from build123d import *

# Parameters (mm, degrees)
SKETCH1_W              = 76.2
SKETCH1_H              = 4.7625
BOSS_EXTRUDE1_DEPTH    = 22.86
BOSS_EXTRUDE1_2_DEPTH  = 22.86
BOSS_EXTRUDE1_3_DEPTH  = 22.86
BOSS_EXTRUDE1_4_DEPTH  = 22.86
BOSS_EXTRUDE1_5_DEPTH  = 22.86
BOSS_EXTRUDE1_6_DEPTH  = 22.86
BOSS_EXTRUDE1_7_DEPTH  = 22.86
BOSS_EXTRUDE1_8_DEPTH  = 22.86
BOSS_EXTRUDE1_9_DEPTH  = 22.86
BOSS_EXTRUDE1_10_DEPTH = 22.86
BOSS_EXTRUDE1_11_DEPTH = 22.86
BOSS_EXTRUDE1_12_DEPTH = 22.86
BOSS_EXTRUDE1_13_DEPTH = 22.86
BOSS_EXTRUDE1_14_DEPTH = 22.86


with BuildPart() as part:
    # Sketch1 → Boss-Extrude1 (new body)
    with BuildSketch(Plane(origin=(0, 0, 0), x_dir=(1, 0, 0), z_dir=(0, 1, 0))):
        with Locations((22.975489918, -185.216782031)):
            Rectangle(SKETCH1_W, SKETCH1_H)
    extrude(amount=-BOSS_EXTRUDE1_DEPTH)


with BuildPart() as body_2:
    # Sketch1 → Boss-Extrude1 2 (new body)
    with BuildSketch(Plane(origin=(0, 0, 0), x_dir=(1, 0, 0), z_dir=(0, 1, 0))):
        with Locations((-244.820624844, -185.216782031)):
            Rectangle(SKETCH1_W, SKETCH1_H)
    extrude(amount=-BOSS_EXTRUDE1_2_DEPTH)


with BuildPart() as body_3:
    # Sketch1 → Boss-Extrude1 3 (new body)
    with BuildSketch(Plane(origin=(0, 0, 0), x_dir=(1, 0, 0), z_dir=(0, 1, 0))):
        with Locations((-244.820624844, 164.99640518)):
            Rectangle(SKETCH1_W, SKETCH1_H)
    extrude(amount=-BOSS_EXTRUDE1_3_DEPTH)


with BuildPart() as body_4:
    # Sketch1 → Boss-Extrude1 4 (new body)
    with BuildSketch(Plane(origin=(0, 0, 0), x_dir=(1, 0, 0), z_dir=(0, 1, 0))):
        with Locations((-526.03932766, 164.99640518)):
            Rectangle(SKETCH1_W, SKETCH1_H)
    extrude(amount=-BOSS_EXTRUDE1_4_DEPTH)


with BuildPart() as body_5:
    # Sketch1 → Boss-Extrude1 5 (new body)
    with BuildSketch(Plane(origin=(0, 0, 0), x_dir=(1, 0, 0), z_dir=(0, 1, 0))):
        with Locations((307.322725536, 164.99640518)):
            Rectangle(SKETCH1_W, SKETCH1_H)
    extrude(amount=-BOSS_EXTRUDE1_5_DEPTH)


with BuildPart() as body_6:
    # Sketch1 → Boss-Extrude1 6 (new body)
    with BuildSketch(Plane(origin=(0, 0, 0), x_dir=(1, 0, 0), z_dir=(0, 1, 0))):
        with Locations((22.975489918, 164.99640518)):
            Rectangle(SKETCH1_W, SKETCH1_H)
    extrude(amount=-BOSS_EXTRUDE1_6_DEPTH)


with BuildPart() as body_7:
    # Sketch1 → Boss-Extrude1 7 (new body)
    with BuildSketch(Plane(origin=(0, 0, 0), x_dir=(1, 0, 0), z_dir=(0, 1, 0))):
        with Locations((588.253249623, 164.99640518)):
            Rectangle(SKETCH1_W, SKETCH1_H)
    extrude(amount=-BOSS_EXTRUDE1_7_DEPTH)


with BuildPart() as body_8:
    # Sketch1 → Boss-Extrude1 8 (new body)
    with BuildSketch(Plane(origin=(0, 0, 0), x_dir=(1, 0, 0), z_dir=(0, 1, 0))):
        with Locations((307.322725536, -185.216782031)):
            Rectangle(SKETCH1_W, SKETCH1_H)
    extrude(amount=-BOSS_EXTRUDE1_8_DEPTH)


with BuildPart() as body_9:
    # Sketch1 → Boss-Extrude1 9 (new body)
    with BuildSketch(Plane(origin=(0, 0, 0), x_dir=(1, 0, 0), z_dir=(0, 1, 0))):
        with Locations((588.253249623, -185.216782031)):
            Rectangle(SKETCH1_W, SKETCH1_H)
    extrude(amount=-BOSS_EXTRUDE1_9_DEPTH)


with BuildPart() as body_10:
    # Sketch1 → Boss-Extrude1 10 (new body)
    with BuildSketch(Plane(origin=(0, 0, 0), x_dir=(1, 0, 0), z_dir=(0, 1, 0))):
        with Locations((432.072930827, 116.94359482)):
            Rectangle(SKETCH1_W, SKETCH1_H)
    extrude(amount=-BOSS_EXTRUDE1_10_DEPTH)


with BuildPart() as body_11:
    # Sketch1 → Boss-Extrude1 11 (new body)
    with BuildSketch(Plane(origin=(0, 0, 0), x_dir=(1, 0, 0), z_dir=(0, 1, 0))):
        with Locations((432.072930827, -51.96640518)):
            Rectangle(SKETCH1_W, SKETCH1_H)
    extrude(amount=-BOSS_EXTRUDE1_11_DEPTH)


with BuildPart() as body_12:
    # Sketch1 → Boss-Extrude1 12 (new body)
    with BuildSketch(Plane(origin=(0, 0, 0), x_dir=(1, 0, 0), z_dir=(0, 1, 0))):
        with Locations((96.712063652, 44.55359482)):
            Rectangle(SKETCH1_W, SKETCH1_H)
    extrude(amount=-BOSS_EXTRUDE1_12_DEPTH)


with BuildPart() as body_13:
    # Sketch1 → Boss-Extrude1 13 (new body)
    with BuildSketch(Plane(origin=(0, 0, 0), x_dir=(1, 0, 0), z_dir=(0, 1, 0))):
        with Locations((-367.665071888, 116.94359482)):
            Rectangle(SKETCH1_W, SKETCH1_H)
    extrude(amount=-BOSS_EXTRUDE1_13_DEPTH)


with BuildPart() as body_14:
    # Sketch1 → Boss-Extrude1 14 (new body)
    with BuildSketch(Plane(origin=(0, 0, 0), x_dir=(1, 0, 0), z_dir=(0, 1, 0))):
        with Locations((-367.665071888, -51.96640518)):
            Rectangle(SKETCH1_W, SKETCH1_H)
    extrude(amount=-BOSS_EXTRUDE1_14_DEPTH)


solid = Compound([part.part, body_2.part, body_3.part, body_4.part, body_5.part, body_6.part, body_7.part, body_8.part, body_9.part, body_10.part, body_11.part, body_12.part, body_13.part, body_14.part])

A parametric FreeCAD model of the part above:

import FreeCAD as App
import Part
import Sketcher
from FreeCAD import Vector
Q = App.Units.Quantity


def add_polygon(sketch, points):
    """Adds a closed chain of lines whose ends are joined by coincident constraints."""
    first, n = sketch.GeometryCount, len(points)
    for a, b in zip(points, points[1:] + points[:1]):
        sketch.addGeometry(Part.LineSegment(App.Vector(*a, 0), App.Vector(*b, 0)), False)
    for i in range(n):
        sketch.addConstraint(Sketcher.Constraint("Coincident", first + i, 2, first + (i + 1) % n, 1))

doc = App.newDocument("Part")
body = doc.addObject("PartDesign::Body", "Body")

# Sketch on XZ plane
sketch1 = body.newObject("Sketcher::SketchObject", "Sketch")
sketch1.AttachmentSupport = (doc.getObject("XZ_Plane"), [""])
sketch1.MapMode = "FlatFace"
add_polygon(sketch1, [(-15.1, 182.8), (-15.1, 187.6), (61.1, 187.6), (61.1, 182.8)])  # lines 0-3
sketch1.addConstraint([
    Sketcher.Constraint("Vertical", 0),
    Sketcher.Constraint("Horizontal", 1),
    Sketcher.Constraint("Vertical", 2),
    Sketcher.Constraint("Horizontal", 3),
    Sketcher.Constraint("DistanceX", 1, 1, 1, 2, Q("3 in")),
    Sketcher.Constraint("DistanceY", 0, 1, 0, 2, Q("0.1875 in")),
    Sketcher.Constraint("DistanceX", 0, 2, -1, 1, 15.12451),
    Sketcher.Constraint("DistanceY", -1, 1, 0, 2, 187.598032),
])
pad1 = body.newObject("PartDesign::Pad", "Pad")
pad1.Profile = sketch1
pad1.Length = Q("0.9 in")
body2 = doc.addObject("PartDesign::Body", "Body001")

# Sketch on XZ plane
sketch2 = body2.newObject("Sketcher::SketchObject", "Sketch001")
sketch2.AttachmentSupport = (doc.getObject("XZ_Plane001"), [""])
sketch2.MapMode = "FlatFace"
add_polygon(sketch2, [(-282.9, 182.8), (-282.9, 187.6), (-206.7, 187.6), (-206.7, 182.8)])  # lines 0-3
sketch2.addConstraint([
    Sketcher.Constraint("Vertical", 0),
    Sketcher.Constraint("Horizontal", 1),
    Sketcher.Constraint("Vertical", 2),
    Sketcher.Constraint("Horizontal", 3),
    Sketcher.Constraint("DistanceX", 1, 1, 1, 2, Q("3 in")),
    Sketcher.Constraint("DistanceY", 0, 1, 0, 2, Q("0.1875 in")),
    Sketcher.Constraint("DistanceX", 0, 2, -1, 1, 282.920625),
    Sketcher.Constraint("DistanceY", -1, 1, 0, 2, 187.598032),
])
pad2 = body2.newObject("PartDesign::Pad", "Pad001")
pad2.Profile = sketch2
pad2.Length = Q("0.9 in")
body3 = doc.addObject("PartDesign::Body", "Body002")

# Sketch on XZ plane
sketch3 = body3.newObject("Sketcher::SketchObject", "Sketch002")
sketch3.AttachmentSupport = (doc.getObject("XZ_Plane002"), [""])
sketch3.MapMode = "FlatFace"
add_polygon(sketch3, [(-282.9, -167.4), (-282.9, -162.6), (-206.7, -162.6), (-206.7, -167.4)])  # lines 0-3
sketch3.addConstraint([
    Sketcher.Constraint("Vertical", 0),
    Sketcher.Constraint("Horizontal", 1),
    Sketcher.Constraint("Vertical", 2),
    Sketcher.Constraint("Horizontal", 3),
    Sketcher.Constraint("DistanceX", 1, 1, 1, 2, Q("3 in")),
    Sketcher.Constraint("DistanceY", 0, 1, 0, 2, Q("0.1875 in")),
    Sketcher.Constraint("DistanceX", 0, 2, -1, 1, 282.920625),
    Sketcher.Constraint("DistanceY", 0, 2, -1, 1, 162.615155),
])
pad3 = body3.newObject("PartDesign::Pad", "Pad002")
pad3.Profile = sketch3
pad3.Length = Q("0.9 in")
body4 = doc.addObject("PartDesign::Body", "Body003")

# Sketch on XZ plane
sketch4 = body4.newObject("Sketcher::SketchObject", "Sketch003")
sketch4.AttachmentSupport = (doc.getObject("XZ_Plane003"), [""])
sketch4.MapMode = "FlatFace"
add_polygon(sketch4, [(-564.1, -167.4), (-564.1, -162.6), (-487.9, -162.6), (-487.9, -167.4)])  # lines 0-3
sketch4.addConstraint([
    Sketcher.Constraint("Vertical", 0),
    Sketcher.Constraint("Horizontal", 1),
    Sketcher.Constraint("Vertical", 2),
    Sketcher.Constraint("Horizontal", 3),
    Sketcher.Constraint("DistanceX", 1, 1, 1, 2, Q("3 in")),
    Sketcher.Constraint("DistanceY", 0, 1, 0, 2, Q("0.1875 in")),
    Sketcher.Constraint("DistanceX", 0, 2, -1, 1, 564.139328),
    Sketcher.Constraint("DistanceY", 0, 2, -1, 1, 162.615155),
])
pad4 = body4.newObject("PartDesign::Pad", "Pad003")
pad4.Profile = sketch4
pad4.Length = Q("0.9 in")
body5 = doc.addObject("PartDesign::Body", "Body004")

# Sketch on XZ plane
sketch5 = body5.newObject("Sketcher::SketchObject", "Sketch004")
sketch5.AttachmentSupport = (doc.getObject("XZ_Plane004"), [""])
sketch5.MapMode = "FlatFace"
add_polygon(sketch5, [(269.2, -167.4), (269.2, -162.6), (345.4, -162.6), (345.4, -167.4)])  # lines 0-3
sketch5.addConstraint([
    Sketcher.Constraint("Vertical", 0),
    Sketcher.Constraint("Horizontal", 1),
    Sketcher.Constraint("Vertical", 2),
    Sketcher.Constraint("Horizontal", 3),
    Sketcher.Constraint("DistanceX", 1, 1, 1, 2, Q("3 in")),
    Sketcher.Constraint("DistanceY", 0, 1, 0, 2, Q("0.1875 in")),
    Sketcher.Constraint("DistanceX", -1, 1, 0, 2, 269.222726),
    Sketcher.Constraint("DistanceY", 0, 2, -1, 1, 162.615155),
])
pad5 = body5.newObject("PartDesign::Pad", "Pad004")
pad5.Profile = sketch5
pad5.Length = Q("0.9 in")
body6 = doc.addObject("PartDesign::Body", "Body005")

# Sketch on XZ plane
sketch6 = body6.newObject("Sketcher::SketchObject", "Sketch005")
sketch6.AttachmentSupport = (doc.getObject("XZ_Plane005"), [""])
sketch6.MapMode = "FlatFace"
add_polygon(sketch6, [(-15.1, -167.4), (-15.1, -162.6), (61.1, -162.6), (61.1, -167.4)])  # lines 0-3
sketch6.addConstraint([
    Sketcher.Constraint("Vertical", 0),
    Sketcher.Constraint("Horizontal", 1),
    Sketcher.Constraint("Vertical", 2),
    Sketcher.Constraint("Horizontal", 3),
    Sketcher.Constraint("DistanceX", 1, 1, 1, 2, Q("3 in")),
    Sketcher.Constraint("DistanceY", 0, 1, 0, 2, Q("0.1875 in")),
    Sketcher.Constraint("DistanceX", 0, 2, -1, 1, 15.12451),
    Sketcher.Constraint("DistanceY", 0, 2, -1, 1, 162.615155),
])
pad6 = body6.newObject("PartDesign::Pad", "Pad005")
pad6.Profile = sketch6
pad6.Length = Q("0.9 in")
body7 = doc.addObject("PartDesign::Body", "Body006")

# Sketch on XZ plane
sketch7 = body7.newObject("Sketcher::SketchObject", "Sketch006")
sketch7.AttachmentSupport = (doc.getObject("XZ_Plane006"), [""])
sketch7.MapMode = "FlatFace"
add_polygon(sketch7, [(550.2, -167.4), (550.2, -162.6), (626.4, -162.6), (626.4, -167.4)])  # lines 0-3
sketch7.addConstraint([
    Sketcher.Constraint("Vertical", 0),
    Sketcher.Constraint("Horizontal", 1),
    Sketcher.Constraint("Vertical", 2),
    Sketcher.Constraint("Horizontal", 3),
    Sketcher.Constraint("DistanceX", 1, 1, 1, 2, Q("3 in")),
    Sketcher.Constraint("DistanceY", 0, 1, 0, 2, Q("0.1875 in")),
    Sketcher.Constraint("DistanceX", -1, 1, 0, 2, 550.15325),
    Sketcher.Constraint("DistanceY", 0, 2, -1, 1, 162.615155),
])
pad7 = body7.newObject("PartDesign::Pad", "Pad006")
pad7.Profile = sketch7
pad7.Length = Q("0.9 in")
body8 = doc.addObject("PartDesign::Body", "Body007")

# Sketch on XZ plane
sketch8 = body8.newObject("Sketcher::SketchObject", "Sketch007")
sketch8.AttachmentSupport = (doc.getObject("XZ_Plane007"), [""])
sketch8.MapMode = "FlatFace"
add_polygon(sketch8, [(269.2, 182.8), (269.2, 187.6), (345.4, 187.6), (345.4, 182.8)])  # lines 0-3
sketch8.addConstraint([
    Sketcher.Constraint("Vertical", 0),
    Sketcher.Constraint("Horizontal", 1),
    Sketcher.Constraint("Vertical", 2),
    Sketcher.Constraint("Horizontal", 3),
    Sketcher.Constraint("DistanceX", 1, 1, 1, 2, Q("3 in")),
    Sketcher.Constraint("DistanceY", 0, 1, 0, 2, Q("0.1875 in")),
    Sketcher.Constraint("DistanceX", -1, 1, 0, 2, 269.222726),
    Sketcher.Constraint("DistanceY", -1, 1, 0, 2, 187.598032),
])
pad8 = body8.newObject("PartDesign::Pad", "Pad007")
pad8.Profile = sketch8
pad8.Length = Q("0.9 in")
body9 = doc.addObject("PartDesign::Body", "Body008")

# Sketch on XZ plane
sketch9 = body9.newObject("Sketcher::SketchObject", "Sketch008")
sketch9.AttachmentSupport = (doc.getObject("XZ_Plane008"), [""])
sketch9.MapMode = "FlatFace"
add_polygon(sketch9, [(550.2, 182.8), (550.2, 187.6), (626.4, 187.6), (626.4, 182.8)])  # lines 0-3
sketch9.addConstraint([
    Sketcher.Constraint("Vertical", 0),
    Sketcher.Constraint("Horizontal", 1),
    Sketcher.Constraint("Vertical", 2),
    Sketcher.Constraint("Horizontal", 3),
    Sketcher.Constraint("DistanceX", 1, 1, 1, 2, Q("3 in")),
    Sketcher.Constraint("DistanceY", 0, 1, 0, 2, Q("0.1875 in")),
    Sketcher.Constraint("DistanceX", -1, 1, 0, 2, 550.15325),
    Sketcher.Constraint("DistanceY", -1, 1, 0, 2, 187.598032),
])
pad9 = body9.newObject("PartDesign::Pad", "Pad008")
pad9.Profile = sketch9
pad9.Length = Q("0.9 in")
body10 = doc.addObject("PartDesign::Body", "Body009")

# Sketch on XZ plane
sketch10 = body10.newObject("Sketcher::SketchObject", "Sketch009")
sketch10.AttachmentSupport = (doc.getObject("XZ_Plane009"), [""])
sketch10.MapMode = "FlatFace"
add_polygon(sketch10, [(394, -119.3), (394, -114.6), (470.2, -114.6), (470.2, -119.3)])  # lines 0-3
sketch10.addConstraint([
    Sketcher.Constraint("Vertical", 0),
    Sketcher.Constraint("Horizontal", 1),
    Sketcher.Constraint("Vertical", 2),
    Sketcher.Constraint("Horizontal", 3),
    Sketcher.Constraint("DistanceX", 1, 1, 1, 2, Q("3 in")),
    Sketcher.Constraint("DistanceY", 0, 1, 0, 2, Q("0.1875 in")),
    Sketcher.Constraint("DistanceX", -1, 1, 0, 2, 393.972931),
    Sketcher.Constraint("DistanceY", 0, 2, -1, 1, 114.562345),
])
pad10 = body10.newObject("PartDesign::Pad", "Pad009")
pad10.Profile = sketch10
pad10.Length = Q("0.9 in")
body11 = doc.addObject("PartDesign::Body", "Body010")

# Sketch on XZ plane
sketch11 = body11.newObject("Sketcher::SketchObject", "Sketch010")
sketch11.AttachmentSupport = (doc.getObject("XZ_Plane010"), [""])
sketch11.MapMode = "FlatFace"
add_polygon(sketch11, [(394, 49.6), (394, 54.3), (470.2, 54.3), (470.2, 49.6)])  # lines 0-3
sketch11.addConstraint([
    Sketcher.Constraint("Vertical", 0),
    Sketcher.Constraint("Horizontal", 1),
    Sketcher.Constraint("Vertical", 2),
    Sketcher.Constraint("Horizontal", 3),
    Sketcher.Constraint("DistanceX", 1, 1, 1, 2, Q("3 in")),
    Sketcher.Constraint("DistanceY", 0, 1, 0, 2, Q("0.1875 in")),
    Sketcher.Constraint("DistanceX", -1, 1, 0, 2, 393.972931),
    Sketcher.Constraint("DistanceY", -1, 1, 0, 2, 54.347655),
])
pad11 = body11.newObject("PartDesign::Pad", "Pad010")
pad11.Profile = sketch11
pad11.Length = Q("0.9 in")
body12 = doc.addObject("PartDesign::Body", "Body011")

# Sketch on XZ plane
sketch12 = body12.newObject("Sketcher::SketchObject", "Sketch011")
sketch12.AttachmentSupport = (doc.getObject("XZ_Plane011"), [""])
sketch12.MapMode = "FlatFace"
add_polygon(sketch12, [(58.6, -46.9), (58.6, -42.2), (134.8, -42.2), (134.8, -46.9)])  # lines 0-3
sketch12.addConstraint([
    Sketcher.Constraint("Vertical", 0),
    Sketcher.Constraint("Horizontal", 1),
    Sketcher.Constraint("Vertical", 2),
    Sketcher.Constraint("Horizontal", 3),
    Sketcher.Constraint("DistanceX", 1, 1, 1, 2, Q("3 in")),
    Sketcher.Constraint("DistanceY", 0, 1, 0, 2, Q("0.1875 in")),
    Sketcher.Constraint("DistanceX", -1, 1, 0, 2, 58.612064),
    Sketcher.Constraint("DistanceY", 0, 2, -1, 1, 42.172345),
])
pad12 = body12.newObject("PartDesign::Pad", "Pad011")
pad12.Profile = sketch12
pad12.Length = Q("0.9 in")
body13 = doc.addObject("PartDesign::Body", "Body012")

# Sketch on XZ plane
sketch13 = body13.newObject("Sketcher::SketchObject", "Sketch012")
sketch13.AttachmentSupport = (doc.getObject("XZ_Plane012"), [""])
sketch13.MapMode = "FlatFace"
add_polygon(sketch13, [(-405.8, -119.3), (-405.8, -114.6), (-329.6, -114.6), (-329.6, -119.3)])  # lines 0-3
sketch13.addConstraint([
    Sketcher.Constraint("Vertical", 0),
    Sketcher.Constraint("Horizontal", 1),
    Sketcher.Constraint("Vertical", 2),
    Sketcher.Constraint("Horizontal", 3),
    Sketcher.Constraint("DistanceX", 1, 1, 1, 2, Q("3 in")),
    Sketcher.Constraint("DistanceY", 0, 1, 0, 2, Q("0.1875 in")),
    Sketcher.Constraint("DistanceX", 0, 2, -1, 1, 405.765072),
    Sketcher.Constraint("DistanceY", 0, 2, -1, 1, 114.562345),
])
pad13 = body13.newObject("PartDesign::Pad", "Pad012")
pad13.Profile = sketch13
pad13.Length = Q("0.9 in")
body14 = doc.addObject("PartDesign::Body", "Body013")

# Sketch on XZ plane
sketch14 = body14.newObject("Sketcher::SketchObject", "Sketch013")
sketch14.AttachmentSupport = (doc.getObject("XZ_Plane013"), [""])
sketch14.MapMode = "FlatFace"
add_polygon(sketch14, [(-405.8, 49.6), (-405.8, 54.3), (-329.6, 54.3), (-329.6, 49.6)])  # lines 0-3
sketch14.addConstraint([
    Sketcher.Constraint("Vertical", 0),
    Sketcher.Constraint("Horizontal", 1),
    Sketcher.Constraint("Vertical", 2),
    Sketcher.Constraint("Horizontal", 3),
    Sketcher.Constraint("DistanceX", 1, 1, 1, 2, Q("3 in")),
    Sketcher.Constraint("DistanceY", 0, 1, 0, 2, Q("0.1875 in")),
    Sketcher.Constraint("DistanceX", 0, 2, -1, 1, 405.765072),
    Sketcher.Constraint("DistanceY", -1, 1, 0, 2, 54.347655),
])
pad14 = body14.newObject("PartDesign::Pad", "Pad013")
pad14.Profile = sketch14
pad14.Length = Q("0.9 in")

doc.recompute()
